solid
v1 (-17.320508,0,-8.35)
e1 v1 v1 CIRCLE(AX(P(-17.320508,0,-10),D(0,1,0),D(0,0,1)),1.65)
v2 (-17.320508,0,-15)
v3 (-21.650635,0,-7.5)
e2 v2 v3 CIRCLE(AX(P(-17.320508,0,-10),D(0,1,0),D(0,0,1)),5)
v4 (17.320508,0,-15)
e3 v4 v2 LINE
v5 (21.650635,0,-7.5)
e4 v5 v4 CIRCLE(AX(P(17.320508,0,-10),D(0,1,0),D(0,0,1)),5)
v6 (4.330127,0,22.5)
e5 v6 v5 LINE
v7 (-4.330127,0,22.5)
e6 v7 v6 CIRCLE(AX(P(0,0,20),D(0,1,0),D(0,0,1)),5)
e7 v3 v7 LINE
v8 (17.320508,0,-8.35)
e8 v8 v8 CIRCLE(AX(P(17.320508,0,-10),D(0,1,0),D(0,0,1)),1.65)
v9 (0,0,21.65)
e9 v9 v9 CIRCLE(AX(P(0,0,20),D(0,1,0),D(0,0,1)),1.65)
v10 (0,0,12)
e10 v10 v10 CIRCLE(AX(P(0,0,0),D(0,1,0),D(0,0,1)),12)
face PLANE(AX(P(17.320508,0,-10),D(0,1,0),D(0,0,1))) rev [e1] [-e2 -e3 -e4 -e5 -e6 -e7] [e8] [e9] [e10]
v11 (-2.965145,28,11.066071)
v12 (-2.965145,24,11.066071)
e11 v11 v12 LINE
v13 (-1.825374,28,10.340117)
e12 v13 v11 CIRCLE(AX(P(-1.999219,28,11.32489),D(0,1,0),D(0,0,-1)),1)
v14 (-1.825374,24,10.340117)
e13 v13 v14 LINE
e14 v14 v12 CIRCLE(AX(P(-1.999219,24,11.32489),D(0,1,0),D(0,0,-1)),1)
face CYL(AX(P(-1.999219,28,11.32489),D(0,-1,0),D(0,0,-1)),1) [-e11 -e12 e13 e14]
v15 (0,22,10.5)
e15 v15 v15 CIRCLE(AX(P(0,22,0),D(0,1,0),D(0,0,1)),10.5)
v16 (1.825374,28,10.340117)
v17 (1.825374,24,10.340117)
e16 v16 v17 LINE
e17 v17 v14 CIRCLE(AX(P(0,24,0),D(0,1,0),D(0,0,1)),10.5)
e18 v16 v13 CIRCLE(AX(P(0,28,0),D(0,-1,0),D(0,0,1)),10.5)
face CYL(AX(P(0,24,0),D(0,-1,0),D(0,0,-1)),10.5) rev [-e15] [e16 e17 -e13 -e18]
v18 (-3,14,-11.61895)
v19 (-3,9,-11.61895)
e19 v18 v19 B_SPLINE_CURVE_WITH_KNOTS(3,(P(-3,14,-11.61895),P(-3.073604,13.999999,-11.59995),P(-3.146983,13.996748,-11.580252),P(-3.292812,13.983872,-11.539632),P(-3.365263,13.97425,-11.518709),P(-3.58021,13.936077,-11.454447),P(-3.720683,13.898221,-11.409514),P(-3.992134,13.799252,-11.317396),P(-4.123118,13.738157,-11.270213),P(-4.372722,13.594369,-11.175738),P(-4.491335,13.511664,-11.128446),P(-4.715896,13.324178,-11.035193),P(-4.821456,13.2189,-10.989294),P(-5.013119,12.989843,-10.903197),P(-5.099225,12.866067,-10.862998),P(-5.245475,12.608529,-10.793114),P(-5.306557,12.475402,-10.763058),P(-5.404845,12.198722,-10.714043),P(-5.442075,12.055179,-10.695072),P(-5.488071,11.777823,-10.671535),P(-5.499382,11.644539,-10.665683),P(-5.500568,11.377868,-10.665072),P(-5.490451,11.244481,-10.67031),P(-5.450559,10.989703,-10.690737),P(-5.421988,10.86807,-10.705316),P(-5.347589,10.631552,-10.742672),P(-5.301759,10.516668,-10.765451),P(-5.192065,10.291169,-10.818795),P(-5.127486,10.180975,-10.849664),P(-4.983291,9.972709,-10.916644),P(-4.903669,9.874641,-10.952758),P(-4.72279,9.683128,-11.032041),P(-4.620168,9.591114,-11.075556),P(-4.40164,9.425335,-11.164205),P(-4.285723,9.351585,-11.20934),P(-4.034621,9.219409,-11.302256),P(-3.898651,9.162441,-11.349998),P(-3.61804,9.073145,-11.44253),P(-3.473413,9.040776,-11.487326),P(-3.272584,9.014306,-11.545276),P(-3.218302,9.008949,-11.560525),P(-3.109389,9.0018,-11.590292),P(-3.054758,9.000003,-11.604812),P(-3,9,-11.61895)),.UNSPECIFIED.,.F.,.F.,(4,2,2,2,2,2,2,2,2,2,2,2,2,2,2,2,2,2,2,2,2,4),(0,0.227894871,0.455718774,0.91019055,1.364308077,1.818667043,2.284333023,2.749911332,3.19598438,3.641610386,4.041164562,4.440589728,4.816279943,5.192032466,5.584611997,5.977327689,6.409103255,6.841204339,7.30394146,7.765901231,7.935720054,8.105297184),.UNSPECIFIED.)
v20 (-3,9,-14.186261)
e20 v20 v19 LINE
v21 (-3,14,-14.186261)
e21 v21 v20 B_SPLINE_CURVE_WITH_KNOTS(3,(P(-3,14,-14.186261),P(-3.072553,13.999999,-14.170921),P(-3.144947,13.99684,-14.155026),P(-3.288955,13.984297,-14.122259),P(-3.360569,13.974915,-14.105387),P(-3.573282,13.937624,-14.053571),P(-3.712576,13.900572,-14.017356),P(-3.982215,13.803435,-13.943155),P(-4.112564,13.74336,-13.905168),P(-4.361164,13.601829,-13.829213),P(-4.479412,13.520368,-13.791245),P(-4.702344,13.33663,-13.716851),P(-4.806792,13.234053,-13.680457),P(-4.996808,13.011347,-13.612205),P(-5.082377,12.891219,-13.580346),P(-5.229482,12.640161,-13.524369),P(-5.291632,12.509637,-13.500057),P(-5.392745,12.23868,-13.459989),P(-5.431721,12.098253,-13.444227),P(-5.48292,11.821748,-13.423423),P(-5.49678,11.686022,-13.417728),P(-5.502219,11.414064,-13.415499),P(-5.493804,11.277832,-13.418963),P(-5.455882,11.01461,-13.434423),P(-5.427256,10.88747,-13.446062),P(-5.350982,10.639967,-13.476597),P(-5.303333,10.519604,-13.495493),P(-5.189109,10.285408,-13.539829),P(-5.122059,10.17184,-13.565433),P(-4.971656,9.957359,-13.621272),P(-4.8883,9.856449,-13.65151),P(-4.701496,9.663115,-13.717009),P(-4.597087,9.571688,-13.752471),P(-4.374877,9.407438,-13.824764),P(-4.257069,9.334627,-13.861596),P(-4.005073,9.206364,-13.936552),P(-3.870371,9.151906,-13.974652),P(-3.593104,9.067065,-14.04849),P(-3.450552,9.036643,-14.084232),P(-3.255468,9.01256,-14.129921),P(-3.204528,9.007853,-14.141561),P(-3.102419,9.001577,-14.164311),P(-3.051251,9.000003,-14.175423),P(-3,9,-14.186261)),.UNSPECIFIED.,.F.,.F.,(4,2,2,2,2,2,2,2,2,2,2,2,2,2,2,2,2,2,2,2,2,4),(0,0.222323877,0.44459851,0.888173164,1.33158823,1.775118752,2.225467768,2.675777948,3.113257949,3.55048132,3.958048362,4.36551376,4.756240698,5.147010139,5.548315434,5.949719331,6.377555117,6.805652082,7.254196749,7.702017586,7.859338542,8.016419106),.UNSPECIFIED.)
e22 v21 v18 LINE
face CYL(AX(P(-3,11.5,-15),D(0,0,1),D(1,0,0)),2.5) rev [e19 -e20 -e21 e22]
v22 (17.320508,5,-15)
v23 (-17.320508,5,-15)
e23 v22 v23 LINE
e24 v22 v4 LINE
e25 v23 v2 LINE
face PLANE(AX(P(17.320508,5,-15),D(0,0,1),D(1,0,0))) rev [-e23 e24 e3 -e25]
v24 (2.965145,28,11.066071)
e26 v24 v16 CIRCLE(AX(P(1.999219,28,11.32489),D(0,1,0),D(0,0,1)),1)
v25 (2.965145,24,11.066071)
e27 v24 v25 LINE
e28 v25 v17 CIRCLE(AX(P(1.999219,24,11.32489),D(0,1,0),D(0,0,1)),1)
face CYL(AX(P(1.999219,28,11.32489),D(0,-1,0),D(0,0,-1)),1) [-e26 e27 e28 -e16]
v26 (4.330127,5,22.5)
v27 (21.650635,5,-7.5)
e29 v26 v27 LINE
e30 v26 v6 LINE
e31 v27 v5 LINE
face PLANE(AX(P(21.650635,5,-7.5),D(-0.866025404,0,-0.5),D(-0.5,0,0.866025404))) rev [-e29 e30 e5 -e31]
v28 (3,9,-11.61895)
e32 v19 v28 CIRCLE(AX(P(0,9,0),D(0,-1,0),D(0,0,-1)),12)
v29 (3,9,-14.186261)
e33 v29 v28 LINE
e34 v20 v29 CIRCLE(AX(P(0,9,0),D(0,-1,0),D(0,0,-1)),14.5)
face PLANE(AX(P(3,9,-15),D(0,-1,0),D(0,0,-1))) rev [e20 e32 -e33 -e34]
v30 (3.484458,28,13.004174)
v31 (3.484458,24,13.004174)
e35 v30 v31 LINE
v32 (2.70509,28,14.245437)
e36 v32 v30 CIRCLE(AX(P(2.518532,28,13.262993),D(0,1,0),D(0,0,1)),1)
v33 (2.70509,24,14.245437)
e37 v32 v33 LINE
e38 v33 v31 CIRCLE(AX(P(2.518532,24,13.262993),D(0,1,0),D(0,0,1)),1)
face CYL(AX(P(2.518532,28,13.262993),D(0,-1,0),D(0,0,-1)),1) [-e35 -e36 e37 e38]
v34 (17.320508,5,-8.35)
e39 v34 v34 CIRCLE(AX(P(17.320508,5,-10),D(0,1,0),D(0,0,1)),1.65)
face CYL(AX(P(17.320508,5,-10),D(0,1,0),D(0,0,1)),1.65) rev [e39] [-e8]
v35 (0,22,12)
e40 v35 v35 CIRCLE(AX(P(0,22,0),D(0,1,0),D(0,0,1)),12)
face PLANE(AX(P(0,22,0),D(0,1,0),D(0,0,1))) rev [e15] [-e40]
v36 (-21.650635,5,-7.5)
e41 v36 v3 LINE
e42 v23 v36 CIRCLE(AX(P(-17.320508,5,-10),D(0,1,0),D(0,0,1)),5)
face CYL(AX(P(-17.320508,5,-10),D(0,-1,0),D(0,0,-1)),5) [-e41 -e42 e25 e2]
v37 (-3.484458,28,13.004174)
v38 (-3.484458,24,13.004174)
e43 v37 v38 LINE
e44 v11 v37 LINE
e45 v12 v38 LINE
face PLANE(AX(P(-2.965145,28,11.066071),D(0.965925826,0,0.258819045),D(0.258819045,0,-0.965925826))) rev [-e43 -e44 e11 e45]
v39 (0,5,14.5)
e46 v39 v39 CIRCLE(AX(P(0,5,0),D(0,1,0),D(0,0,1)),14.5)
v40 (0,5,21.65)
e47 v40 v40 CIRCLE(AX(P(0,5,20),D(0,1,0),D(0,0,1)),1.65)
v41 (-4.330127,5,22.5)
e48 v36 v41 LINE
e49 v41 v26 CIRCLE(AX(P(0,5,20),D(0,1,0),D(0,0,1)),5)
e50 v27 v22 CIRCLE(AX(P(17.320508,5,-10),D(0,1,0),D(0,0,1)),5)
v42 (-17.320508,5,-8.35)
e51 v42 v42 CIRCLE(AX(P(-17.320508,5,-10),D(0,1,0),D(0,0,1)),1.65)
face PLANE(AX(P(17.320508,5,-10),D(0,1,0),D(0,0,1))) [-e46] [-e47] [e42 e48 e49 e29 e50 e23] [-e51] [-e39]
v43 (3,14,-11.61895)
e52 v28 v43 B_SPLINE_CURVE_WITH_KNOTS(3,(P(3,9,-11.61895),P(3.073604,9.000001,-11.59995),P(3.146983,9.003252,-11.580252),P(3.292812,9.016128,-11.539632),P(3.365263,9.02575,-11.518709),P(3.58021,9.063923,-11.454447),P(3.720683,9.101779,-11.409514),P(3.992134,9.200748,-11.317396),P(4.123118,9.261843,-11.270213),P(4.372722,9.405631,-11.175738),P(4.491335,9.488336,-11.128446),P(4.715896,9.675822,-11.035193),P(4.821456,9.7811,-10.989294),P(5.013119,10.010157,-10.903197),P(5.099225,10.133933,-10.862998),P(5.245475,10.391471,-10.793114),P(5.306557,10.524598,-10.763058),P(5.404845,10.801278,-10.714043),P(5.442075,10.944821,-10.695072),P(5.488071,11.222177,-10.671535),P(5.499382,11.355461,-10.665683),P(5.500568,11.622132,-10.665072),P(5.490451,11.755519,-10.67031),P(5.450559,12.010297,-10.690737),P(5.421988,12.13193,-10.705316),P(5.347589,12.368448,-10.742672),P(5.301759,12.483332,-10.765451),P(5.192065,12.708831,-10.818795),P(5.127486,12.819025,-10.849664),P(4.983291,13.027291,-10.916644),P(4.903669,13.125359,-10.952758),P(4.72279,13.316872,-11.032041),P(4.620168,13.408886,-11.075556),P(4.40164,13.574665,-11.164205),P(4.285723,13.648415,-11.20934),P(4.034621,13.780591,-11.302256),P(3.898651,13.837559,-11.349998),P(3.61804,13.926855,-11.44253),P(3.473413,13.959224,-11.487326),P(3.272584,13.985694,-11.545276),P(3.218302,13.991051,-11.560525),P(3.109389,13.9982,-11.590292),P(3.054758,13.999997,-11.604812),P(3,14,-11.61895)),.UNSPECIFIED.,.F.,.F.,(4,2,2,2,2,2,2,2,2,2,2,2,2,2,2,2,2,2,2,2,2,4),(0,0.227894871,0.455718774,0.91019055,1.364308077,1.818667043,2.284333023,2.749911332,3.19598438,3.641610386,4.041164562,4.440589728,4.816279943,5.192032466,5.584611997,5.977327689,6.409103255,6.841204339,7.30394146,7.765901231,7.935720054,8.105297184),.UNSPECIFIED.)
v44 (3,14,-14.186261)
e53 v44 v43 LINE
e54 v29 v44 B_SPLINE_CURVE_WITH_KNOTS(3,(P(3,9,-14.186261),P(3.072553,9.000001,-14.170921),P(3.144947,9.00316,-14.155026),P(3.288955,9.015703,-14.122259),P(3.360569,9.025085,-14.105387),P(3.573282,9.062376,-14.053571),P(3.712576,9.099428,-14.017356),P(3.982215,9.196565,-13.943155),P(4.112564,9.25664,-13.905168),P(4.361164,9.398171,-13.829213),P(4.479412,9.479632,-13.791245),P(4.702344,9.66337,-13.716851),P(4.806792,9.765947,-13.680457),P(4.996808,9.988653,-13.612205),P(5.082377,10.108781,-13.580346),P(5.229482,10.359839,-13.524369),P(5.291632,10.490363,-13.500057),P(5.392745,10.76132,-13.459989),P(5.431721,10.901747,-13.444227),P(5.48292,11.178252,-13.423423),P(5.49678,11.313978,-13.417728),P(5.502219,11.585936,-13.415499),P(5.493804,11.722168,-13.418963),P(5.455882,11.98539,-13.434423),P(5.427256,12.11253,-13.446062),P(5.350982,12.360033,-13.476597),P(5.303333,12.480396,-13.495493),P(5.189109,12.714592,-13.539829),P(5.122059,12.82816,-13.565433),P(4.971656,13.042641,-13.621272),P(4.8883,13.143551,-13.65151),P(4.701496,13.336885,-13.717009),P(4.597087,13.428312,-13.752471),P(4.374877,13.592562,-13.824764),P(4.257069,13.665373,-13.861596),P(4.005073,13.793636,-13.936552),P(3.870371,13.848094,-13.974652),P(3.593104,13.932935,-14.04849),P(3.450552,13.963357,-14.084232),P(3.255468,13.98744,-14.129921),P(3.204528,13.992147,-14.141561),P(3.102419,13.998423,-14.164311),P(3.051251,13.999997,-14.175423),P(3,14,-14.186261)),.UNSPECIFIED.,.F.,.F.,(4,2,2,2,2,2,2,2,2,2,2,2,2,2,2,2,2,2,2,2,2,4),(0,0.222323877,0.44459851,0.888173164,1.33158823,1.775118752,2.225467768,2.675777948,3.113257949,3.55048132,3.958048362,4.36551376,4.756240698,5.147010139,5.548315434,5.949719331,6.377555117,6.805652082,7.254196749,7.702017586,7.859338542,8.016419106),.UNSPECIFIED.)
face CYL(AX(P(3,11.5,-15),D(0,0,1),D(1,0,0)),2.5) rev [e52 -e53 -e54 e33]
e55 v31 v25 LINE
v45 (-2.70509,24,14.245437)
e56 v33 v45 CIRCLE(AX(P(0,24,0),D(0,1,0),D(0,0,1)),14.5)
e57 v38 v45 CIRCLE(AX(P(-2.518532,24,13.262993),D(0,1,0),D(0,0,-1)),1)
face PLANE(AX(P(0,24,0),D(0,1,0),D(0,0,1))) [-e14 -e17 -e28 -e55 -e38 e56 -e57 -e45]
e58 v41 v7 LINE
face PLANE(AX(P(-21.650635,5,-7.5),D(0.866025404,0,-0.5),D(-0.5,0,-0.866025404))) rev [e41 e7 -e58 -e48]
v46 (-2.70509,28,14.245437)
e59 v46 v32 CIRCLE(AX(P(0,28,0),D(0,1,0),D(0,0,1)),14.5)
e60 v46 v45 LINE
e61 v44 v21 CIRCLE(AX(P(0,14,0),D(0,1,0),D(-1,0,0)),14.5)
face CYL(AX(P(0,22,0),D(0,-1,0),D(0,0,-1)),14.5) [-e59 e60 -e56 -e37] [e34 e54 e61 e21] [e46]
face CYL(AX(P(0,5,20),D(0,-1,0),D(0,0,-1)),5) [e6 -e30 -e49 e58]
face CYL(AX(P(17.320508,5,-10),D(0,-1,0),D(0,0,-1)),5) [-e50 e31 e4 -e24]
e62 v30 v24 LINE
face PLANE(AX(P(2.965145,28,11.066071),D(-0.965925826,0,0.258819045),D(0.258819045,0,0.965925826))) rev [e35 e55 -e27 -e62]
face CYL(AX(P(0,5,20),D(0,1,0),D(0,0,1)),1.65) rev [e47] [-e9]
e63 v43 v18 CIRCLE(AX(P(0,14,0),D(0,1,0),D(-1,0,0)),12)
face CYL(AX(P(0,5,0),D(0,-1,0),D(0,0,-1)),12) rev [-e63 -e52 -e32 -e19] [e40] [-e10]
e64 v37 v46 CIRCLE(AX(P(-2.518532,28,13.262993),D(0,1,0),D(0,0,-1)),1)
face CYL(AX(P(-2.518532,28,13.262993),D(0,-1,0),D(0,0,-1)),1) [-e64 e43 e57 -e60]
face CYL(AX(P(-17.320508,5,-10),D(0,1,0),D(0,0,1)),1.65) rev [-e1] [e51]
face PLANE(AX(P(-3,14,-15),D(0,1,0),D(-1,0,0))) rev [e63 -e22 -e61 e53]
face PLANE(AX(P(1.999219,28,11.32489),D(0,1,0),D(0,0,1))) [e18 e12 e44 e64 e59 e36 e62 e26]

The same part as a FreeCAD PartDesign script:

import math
import FreeCAD as App
import Part
import Sketcher

V = App.Vector
Q = App.Units.Quantity

doc = App.newDocument("Part")
body = doc.addObject("PartDesign::Body", "Body")

# Sketch on XZ plane
sketch1 = body.newObject("Sketcher::SketchObject", "Sketch")
sketch1.AttachmentSupport = (doc.getObject("XZ_Plane"), [""])
sketch1.MapMode = "FlatFace"
sketch1.addGeometry(Part.LineSegment(V(-21.7, -7.5, 0), V(-4.3, 22.5, 0)), False)
sketch1.addGeometry(Part.ArcOfCircle(Part.Circle(V(0, 20, 0), V(0, 0, 1), 5), math.radians(30), math.radians(150)), False)
sketch1.addGeometry(Part.LineSegment(V(4.3, 22.5, 0), V(21.7, -7.5, 0)), False)
sketch1.addGeometry(Part.ArcOfCircle(Part.Circle(V(17.3, -10, 0), V(0, 0, 1), 5), math.radians(-90), math.radians(30)), False)
sketch1.addGeometry(Part.LineSegment(V(17.3, -15, 0), V(-17.3, -15, 0)), False)
sketch1.addGeometry(Part.ArcOfCircle(Part.Circle(V(-17.3, -10, 0), V(0, 0, 1), 5), math.radians(150), math.radians(270)), False)
sketch1.addGeometry(Part.Circle(V(0, 0, 0), V(0, 0, 1), 12), False)
sketch1.addConstraint(Sketcher.Constraint("Tangent", 0, 2, 1, 2))
sketch1.addConstraint(Sketcher.Constraint("Tangent", 1, 1, 2, 1))
sketch1.addConstraint(Sketcher.Constraint("Tangent", 2, 2, 3, 2))
sketch1.addConstraint(Sketcher.Constraint("Tangent", 3, 1, 4, 1))
sketch1.addConstraint(Sketcher.Constraint("Tangent", 4, 2, 5, 2))
sketch1.addConstraint(Sketcher.Constraint("Tangent", 5, 1, 0, 1))
sketch1.addConstraint(Sketcher.Constraint("Horizontal", 4))
sketch1.addConstraint(Sketcher.Constraint("Coincident", 6, 3, -1, 1))
sketch1.addConstraint(Sketcher.Constraint("Equal", 1, 3))
sketch1.addConstraint(Sketcher.Constraint("Equal", 3, 5))
sketch1.addConstraint(Sketcher.Constraint("Symmetric", 0, 2, 1, 1, -2))
sketch1.addConstraint(Sketcher.Constraint("Diameter", 6, 24.0))
sketch1.addConstraint(Sketcher.Constraint("Radius", 1, 5.0))
sketch1.addConstraint(Sketcher.Constraint("Angle", 0, Q("60 deg")))
sketch1.addConstraint(Sketcher.Constraint("DistanceY", -1, 1, 1, 3, 20.0))
sketch1.addConstraint(Sketcher.Constraint("DistanceY", 3, 3, -1, 1, 10.0))
pad1 = body.newObject("PartDesign::Pad", "Pad")
pad1.Profile = sketch1
pad1.Length = 5
pad1.Reversed = True

# Sketch on XZ plane
sketch2 = body.newObject("Sketcher::SketchObject", "Sketch001")
sketch2.AttachmentSupport = (doc.getObject("XZ_Plane"), [""])
sketch2.MapMode = "FlatFace"
sketch2.AttachmentOffset = App.Placement(V(0, 0, -5), App.Rotation())
sketch2.addGeometry(Part.Circle(V(0, 0, 0), V(0, 0, 1), 14), False)
sketch2.addGeometry(Part.Circle(V(0, 0, 0), V(0, 0, 1), 12), False)
sketch2.addConstraint(Sketcher.Constraint("Coincident", 0, 3, -1, 1))
sketch2.addConstraint(Sketcher.Constraint("Coincident", 1, 3, -1, 1))
sketch2.addConstraint(Sketcher.Constraint("Diameter", 0, 29.0))
sketch2.addConstraint(Sketcher.Constraint("Diameter", 1, 24.0))
pad2 = body.newObject("PartDesign::Pad", "Pad001")
pad2.Profile = sketch2
pad2.Length = 17
pad2.Reversed = True

# Sketch on XZ plane
sketch3 = body.newObject("Sketcher::SketchObject", "Sketch002")
sketch3.AttachmentSupport = (doc.getObject("XZ_Plane"), [""])
sketch3.MapMode = "FlatFace"
sketch3.AttachmentOffset = App.Placement(V(0, 0, -22), App.Rotation())
sketch3.addGeometry(Part.Circle(V(0, 0, 0), V(0, 0, 1), 14), False)
sketch3.addGeometry(Part.Circle(V(0, 0, 0), V(0, 0, 1), 10), False)
sketch3.addConstraint(Sketcher.Constraint("Coincident", 0, 3, -1, 1))
sketch3.addConstraint(Sketcher.Constraint("Coincident", 1, 3, -1, 1))
sketch3.addConstraint(Sketcher.Constraint("Diameter", 0, 29.0))
sketch3.addConstraint(Sketcher.Constraint("Diameter", 1, 21.0))
pad3 = body.newObject("PartDesign::Pad", "Pad002")
pad3.Profile = sketch3
pad3.Length = 2
pad3.Reversed = True

# Sketch on XZ plane
sketch4 = body.newObject("Sketcher::SketchObject", "Sketch003")
sketch4.AttachmentSupport = (doc.getObject("XZ_Plane"), [""])
sketch4.MapMode = "FlatFace"
sketch4.AttachmentOffset = App.Placement(V(0, 0, -24), App.Rotation())
sketch4.addGeometry(Part.LineSegment(V(3.5, 13, 0), V(3, 11.1, 0)), False)
sketch4.addGeometry(Part.ArcOfCircle(Part.Circle(V(2, 11.3, 0), V(0, 0, 1), 1), math.radians(-100), math.radians(-15)), False)
sketch4.addGeometry(Part.ArcOfCircle(Part.Circle(V(0, 0, 0), V(0, 0, 1), 10.5), math.radians(80), math.radians(100)), False)
sketch4.addGeometry(Part.ArcOfCircle(Part.Circle(V(-2, 11.3, 0), V(0, 0, 1), 1), math.radians(-165), math.radians(-80)), False)
sketch4.addGeometry(Part.LineSegment(V(-3, 11.1, 0), V(-3.5, 13, 0)), False)
sketch4.addGeometry(Part.ArcOfCircle(Part.Circle(V(-2.5, 13.3, 0), V(0, 0, 1), 1), math.radians(101), math.radians(195)), False)
sketch4.addGeometry(Part.ArcOfCircle(Part.Circle(V(0, 0, 0), V(0, 0, 1), 14.5), math.radians(79), math.radians(101)), False)
sketch4.addGeometry(Part.ArcOfCircle(Part.Circle(V(2.5, 13.3, 0), V(0, 0, 1), 1), math.radians(-15), math.radians(79)), False)
sketch4.addConstraint(Sketcher.Constraint("Tangent", 0, 2, 1, 2))
sketch4.addConstraint(Sketcher.Constraint("Tangent", 1, 1, 2, 1))
sketch4.addConstraint(Sketcher.Constraint("Tangent", 2, 2, 3, 2))
sketch4.addConstraint(Sketcher.Constraint("Tangent", 3, 1, 4, 1))
sketch4.addConstraint(Sketcher.Constraint("Tangent", 4, 2, 5, 2))
sketch4.addConstraint(Sketcher.Constraint("Tangent", 5, 1, 6, 2))
sketch4.addConstraint(Sketcher.Constraint("Tangent", 6, 1, 7, 2))
sketch4.addConstraint(Sketcher.Constraint("Tangent", 7, 1, 0, 1))
sketch4.addConstraint(Sketcher.Constraint("Equal", 1, 3))
sketch4.addConstraint(Sketcher.Constraint("Equal", 3, 5))
sketch4.addConstraint(Sketcher.Constraint("Equal", 5, 7))
sketch4.addConstraint(Sketcher.Constraint("Symmetric", 2, 3, 6, 3, -1, 1))
sketch4.addConstraint(Sketcher.Constraint("Symmetric", 1, 3, 3, 3, -2))
sketch4.addConstraint(Sketcher.Constraint("Horizontal", 5, 3, 7, 3))
sketch4.addConstraint(Sketcher.Constraint("Radius", 1, 0.999999))
sketch4.addConstraint(Sketcher.Constraint("Angle", 0, Q("-104.999996 deg")))
sketch4.addConstraint(Sketcher.Constraint("Radius", 2, 10.500031))
sketch4.addConstraint(Sketcher.Constraint("Radius", 6, 14.499975))
sketch4.addConstraint(Sketcher.Constraint("Distance", 0, 2.006472))
sketch4.addConstraint(Sketcher.Constraint("DistanceX", -1, 1, 1, 3, 1.99922))
pad4 = body.newObject("PartDesign::Pad", "Pad003")
pad4.Profile = sketch4
pad4.Length = 4
pad4.Reversed = True

# Sketch on XY plane
sketch5 = body.newObject("Sketcher::SketchObject", "Sketch004")
sketch5.AttachmentSupport = (doc.getObject("XY_Plane"), [""])
sketch5.MapMode = "FlatFace"
sketch5.addGeometry(Part.LineSegment(V(3, 14, 0), V(-3, 14, 0)), False)
sketch5.addGeometry(Part.ArcOfCircle(Part.Circle(V(-3, 11.5, 0), V(0, 0, 1), 2.5), math.radians(90), math.radians(270)), False)
sketch5.addGeometry(Part.LineSegment(V(-3, 9, 0), V(3, 9, 0)), False)
sketch5.addGeometry(Part.ArcOfCircle(Part.Circle(V(3, 11.5, 0), V(0, 0, 1), 2.5), math.radians(-90), math.radians(90)), False)
sketch5.addConstraint(Sketcher.Constraint("Tangent", 0, 2, 1, 1))
sketch5.addConstraint(Sketcher.Constraint("Tangent", 1, 2, 2, 1))
sketch5.addConstraint(Sketcher.Constraint("Tangent", 2, 2, 3, 1))
sketch5.addConstraint(Sketcher.Constraint("Tangent", 3, 2, 0, 1))
sketch5.addConstraint(Sketcher.Constraint("Horizontal", 0))
sketch5.addConstraint(Sketcher.Constraint("Horizontal", 2))
sketch5.addConstraint(Sketcher.Constraint("Radius", 1, 2.5))
sketch5.addConstraint(Sketcher.Constraint("DistanceX", 0, 2, 0, 1, 6.0))
sketch5.addConstraint(Sketcher.Constraint("DistanceX", 1, 3, -1, 1, 3.0))
sketch5.addConstraint(Sketcher.Constraint("DistanceY", -1, 1, 0, 2, 14.0))
pocket1 = body.newObject("PartDesign::Pocket", "Pocket")
pocket1.Profile = sketch5
pocket1.Type = "ThroughAll"

# Sketch on XZ plane
sketch6 = body.newObject("Sketcher::SketchObject", "Sketch005")
sketch6.AttachmentSupport = (doc.getObject("XZ_Plane"), [""])
sketch6.MapMode = "FlatFace"
sketch6.AttachmentOffset = App.Placement(V(0, 0, -5), App.Rotation())
sketch6.addGeometry(Part.Circle(V(0, 20, 0), V(0, 0, 1), 1.6), False)
sketch6.addGeometry(Part.Circle(V(17.3, -10, 0), V(0, 0, 1), 1.6), False)
sketch6.addGeometry(Part.Circle(V(-17.3, -10, 0), V(0, 0, 1), 1.6), False)
sketch6.addConstraint(Sketcher.Constraint("Equal", 0, 1))
sketch6.addConstraint(Sketcher.Constraint("Equal", 1, 2))
sketch6.addConstraint(Sketcher.Constraint("Symmetric", 1, 3, 2, 3, -2))
sketch6.addConstraint(Sketcher.Constraint("PointOnObject", 0, 3, -2))
sketch6.addConstraint(Sketcher.Constraint("Diameter", 0, 3.3))
sketch6.addConstraint(Sketcher.Constraint("DistanceY", -1, 1, 0, 3, 20.0))
sketch6.addConstraint(Sketcher.Constraint("DistanceY", 1, 3, -1, 1, 10.0))
sketch6.addConstraint(Sketcher.Constraint("DistanceX", -1, 1, 1, 3, 17.320508))
doc.recompute()
hole = body.newObject("PartDesign::Hole", "Hole")
hole.Profile = sketch6
hole.ThreadType = "None"
hole.Diameter = 3.3
hole.DepthType = "ThroughAll"
hole.Reversed = True

doc.recompute()
